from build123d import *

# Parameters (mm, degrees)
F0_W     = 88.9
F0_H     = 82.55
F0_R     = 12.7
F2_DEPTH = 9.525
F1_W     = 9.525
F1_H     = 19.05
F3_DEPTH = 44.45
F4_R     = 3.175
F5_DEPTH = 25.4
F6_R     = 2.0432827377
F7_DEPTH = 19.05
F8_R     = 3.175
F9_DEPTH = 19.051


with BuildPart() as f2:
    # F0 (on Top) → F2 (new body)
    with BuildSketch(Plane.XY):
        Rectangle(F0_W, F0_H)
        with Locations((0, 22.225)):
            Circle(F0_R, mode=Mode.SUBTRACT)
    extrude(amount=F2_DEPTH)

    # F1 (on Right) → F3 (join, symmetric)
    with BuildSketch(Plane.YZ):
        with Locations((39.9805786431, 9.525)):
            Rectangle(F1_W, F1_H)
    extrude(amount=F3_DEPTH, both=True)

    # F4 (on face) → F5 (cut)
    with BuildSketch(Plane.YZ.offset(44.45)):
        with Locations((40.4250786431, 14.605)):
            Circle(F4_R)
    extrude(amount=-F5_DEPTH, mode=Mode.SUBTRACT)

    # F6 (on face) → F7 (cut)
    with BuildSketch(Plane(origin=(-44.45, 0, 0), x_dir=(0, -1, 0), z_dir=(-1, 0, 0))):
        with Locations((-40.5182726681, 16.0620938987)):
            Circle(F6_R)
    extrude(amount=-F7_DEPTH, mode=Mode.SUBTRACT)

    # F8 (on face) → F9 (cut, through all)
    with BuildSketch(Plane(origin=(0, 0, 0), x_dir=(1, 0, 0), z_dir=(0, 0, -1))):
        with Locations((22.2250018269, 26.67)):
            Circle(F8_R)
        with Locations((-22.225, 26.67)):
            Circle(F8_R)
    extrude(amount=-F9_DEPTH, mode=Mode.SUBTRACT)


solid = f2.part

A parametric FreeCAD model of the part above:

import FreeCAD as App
import Part
import Sketcher

V = App.Vector
Q = App.Units.Quantity


def add_polygon(sketch, points):
    """Adds a closed chain of lines whose ends are joined by coincident constraints."""
    first, n = sketch.GeometryCount, len(points)
    for a, b in zip(points, points[1:] + points[:1]):
        sketch.addGeometry(Part.LineSegment(App.Vector(*a, 0), App.Vector(*b, 0)), False)
    for i in range(n):
        sketch.addConstraint(Sketcher.Constraint("Coincident", first + i, 2, first + (i + 1) % n, 1))

doc = App.newDocument("Part")
params = doc.addObject("Spreadsheet::Sheet", "Params")
for row, (alias, value) in enumerate([
    ("sketch1_diameter", "1 in"),
    ("sketch1_width", "3.5 in"),
    ("sketch1_height", "3.25 in"),
    ("pad1_length", "0.375 in"),
    ("sketch2_height", "0.75 in"),
    ("sketch2_width", "0.375 in"),
    ("pad2_length", "3.5 in"),
    ("sketch3_diameter", "0.25 in"),
    ("pocket1_length", "1 in"),
    ("pocket2_length", "0.75 in"),
    ("sketch5_diameter", "0.25 in"),
], start=1):
    params.set(f"A{row}", alias)
    params.set(f"B{row}", "=" + value)
    params.setAlias(f"B{row}", alias)

body = doc.addObject("PartDesign::Body", "Body")

sketch1 = body.newObject("Sketcher::SketchObject", "Sketch")
sketch1.AttachmentSupport = (doc.getObject("XY_Plane"), [""])
sketch1.MapMode = "FlatFace"
add_polygon(sketch1, [(-44.45, 41.275), (-44.45, -41.275), (44.45, -41.275), (44.45, 41.275)])
sketch1.addGeometry(Part.Circle(V(0, 22.225, 0), V(0, 0, 1), 12.7), False)
sketch1.addConstraint(Sketcher.Constraint("Vertical", 0))
sketch1.addConstraint(Sketcher.Constraint("Horizontal", 1))
sketch1.addConstraint(Sketcher.Constraint("Vertical", 2))
sketch1.addConstraint(Sketcher.Constraint("Horizontal", 3))
sketch1.addConstraint(Sketcher.Constraint("Symmetric", 0, 2, 2, 2, -1, 1))
sketch1.addConstraint(Sketcher.Constraint("PointOnObject", 4, 3, -2))
sketch1.addConstraint(Sketcher.Constraint("Diameter", 4, Q("1 in")))
sketch1.addConstraint(Sketcher.Constraint("DistanceX", 1, 1, 1, 2, Q("3.5 in")))
sketch1.addConstraint(Sketcher.Constraint("DistanceY", 0, 2, 0, 1, Q("3.25 in")))
sketch1.addConstraint(Sketcher.Constraint("DistanceY", 0, 2, 4, 3, Q("2.5 in")))
sketch1.setExpression("Constraints[10]", "Params.sketch1_diameter")
sketch1.setExpression("Constraints[11]", "Params.sketch1_width")
sketch1.setExpression("Constraints[12]", "Params.sketch1_height")
pad1 = body.newObject("PartDesign::Pad", "Pad")
pad1.Profile = sketch1
pad1.setExpression("Length", "Params.pad1_length")

sketch2 = body.newObject("Sketcher::SketchObject", "Sketch001")
sketch2.AttachmentSupport = (doc.getObject("YZ_Plane"), [""])
sketch2.MapMode = "FlatFace"
add_polygon(sketch2, [(35.218079, 19.05), (35.218079, 0), (44.743079, 0), (44.743079, 19.05)])
sketch2.addConstraint(Sketcher.Constraint("Vertical", 0))
sketch2.addConstraint(Sketcher.Constraint("Horizontal", 1))
sketch2.addConstraint(Sketcher.Constraint("Vertical", 2))
sketch2.addConstraint(Sketcher.Constraint("Horizontal", 3))
sketch2.addConstraint(Sketcher.Constraint("PointOnObject", 0, 2, -1))
sketch2.addConstraint(Sketcher.Constraint("DistanceY", 0, 2, 0, 1, Q("0.75 in")))
sketch2.addConstraint(Sketcher.Constraint("DistanceX", 1, 1, 1, 2, Q("0.375 in")))
sketch2.addConstraint(Sketcher.Constraint("DistanceX", -1, 1, 0, 2, Q("35.218079 mm")))
sketch2.setExpression("Constraints[9]", "Params.sketch2_height")
sketch2.setExpression("Constraints[10]", "Params.sketch2_width")
pad2 = body.newObject("PartDesign::Pad", "Pad001")
pad2.Profile = sketch2
pad2.setExpression("Length", "Params.pad2_length")
pad2.Midplane = True

sketch3 = body.newObject("Sketcher::SketchObject", "Sketch002")
sketch3.AttachmentSupport = (doc.getObject("YZ_Plane"), [""])
sketch3.MapMode = "FlatFace"
sketch3.AttachmentOffset = App.Placement(V(0, 0, 1.75 * 25.4), App.Rotation())
sketch3.addGeometry(Part.Circle(V(40.425079, 14.605, 0), V(0, 0, 1), 3.175), False)
sketch3.addConstraint(Sketcher.Constraint("Diameter", 0, Q("0.25 in")))
sketch3.addConstraint(Sketcher.Constraint("DistanceY", -1, 1, 0, 3, Q("0.575 in")))
sketch3.addConstraint(Sketcher.Constraint("DistanceX", -1, 1, 0, 3, Q("40.425079 mm")))
sketch3.setExpression("Constraints[0]", "Params.sketch3_diameter")
pocket1 = body.newObject("PartDesign::Pocket", "Pocket")
pocket1.Profile = sketch3
pocket1.setExpression("Length", "Params.pocket1_length")

sketch4 = body.newObject("Sketcher::SketchObject", "Sketch003")
sketch4.AttachmentSupport = (doc.getObject("YZ_Plane"), [""])
sketch4.MapMode = "FlatFace"
sketch4.AttachmentOffset = App.Placement(V(0, 0, -1.75 * 25.4), App.Rotation())
sketch4.addGeometry(Part.Circle(V(40.518273, 16.062094, 0), V(0, 0, 1), 2.043283), False)
sketch4.addConstraint(Sketcher.Constraint("Diameter", 0, Q("4.086565 mm")))
sketch4.addConstraint(Sketcher.Constraint("DistanceX", -1, 1, 0, 3, Q("40.518273 mm")))
sketch4.addConstraint(Sketcher.Constraint("DistanceY", -1, 1, 0, 3, Q("16.062094 mm")))
pocket2 = body.newObject("PartDesign::Pocket", "Pocket001")
pocket2.Profile = sketch4
pocket2.setExpression("Length", "Params.pocket2_length")
pocket2.Reversed = True

sketch5 = body.newObject("Sketcher::SketchObject", "Sketch004")
sketch5.AttachmentSupport = (doc.getObject("XY_Plane"), [""])
sketch5.MapMode = "FlatFace"
sketch5.addGeometry(Part.Circle(V(22.225002, -26.67, 0), V(0, 0, 1), 3.175), False)
sketch5.addGeometry(Part.Circle(V(-22.225, -26.67, 0), V(0, 0, 1), 3.175), False)
sketch5.addConstraint(Sketcher.Constraint("Equal", 0, 1))
sketch5.addConstraint(Sketcher.Constraint("Symmetric", 0, 3, 1, 3, -2))
sketch5.addConstraint(Sketcher.Constraint("Diameter", 0, Q("0.25 in")))
sketch5.addConstraint(Sketcher.Constraint("DistanceY", 0, 3, -1, 1, Q("1.05 in")))
sketch5.addConstraint(Sketcher.Constraint("DistanceX", 1, 3, 0, 3, Q("1.7500001 in")))
sketch5.setExpression("Constraints[2]", "Params.sketch5_diameter")
pocket3 = body.newObject("PartDesign::Pocket", "Pocket002")
pocket3.Profile = sketch5
pocket3.Type = "ThroughAll"
pocket3.Reversed = True

doc.recompute()
